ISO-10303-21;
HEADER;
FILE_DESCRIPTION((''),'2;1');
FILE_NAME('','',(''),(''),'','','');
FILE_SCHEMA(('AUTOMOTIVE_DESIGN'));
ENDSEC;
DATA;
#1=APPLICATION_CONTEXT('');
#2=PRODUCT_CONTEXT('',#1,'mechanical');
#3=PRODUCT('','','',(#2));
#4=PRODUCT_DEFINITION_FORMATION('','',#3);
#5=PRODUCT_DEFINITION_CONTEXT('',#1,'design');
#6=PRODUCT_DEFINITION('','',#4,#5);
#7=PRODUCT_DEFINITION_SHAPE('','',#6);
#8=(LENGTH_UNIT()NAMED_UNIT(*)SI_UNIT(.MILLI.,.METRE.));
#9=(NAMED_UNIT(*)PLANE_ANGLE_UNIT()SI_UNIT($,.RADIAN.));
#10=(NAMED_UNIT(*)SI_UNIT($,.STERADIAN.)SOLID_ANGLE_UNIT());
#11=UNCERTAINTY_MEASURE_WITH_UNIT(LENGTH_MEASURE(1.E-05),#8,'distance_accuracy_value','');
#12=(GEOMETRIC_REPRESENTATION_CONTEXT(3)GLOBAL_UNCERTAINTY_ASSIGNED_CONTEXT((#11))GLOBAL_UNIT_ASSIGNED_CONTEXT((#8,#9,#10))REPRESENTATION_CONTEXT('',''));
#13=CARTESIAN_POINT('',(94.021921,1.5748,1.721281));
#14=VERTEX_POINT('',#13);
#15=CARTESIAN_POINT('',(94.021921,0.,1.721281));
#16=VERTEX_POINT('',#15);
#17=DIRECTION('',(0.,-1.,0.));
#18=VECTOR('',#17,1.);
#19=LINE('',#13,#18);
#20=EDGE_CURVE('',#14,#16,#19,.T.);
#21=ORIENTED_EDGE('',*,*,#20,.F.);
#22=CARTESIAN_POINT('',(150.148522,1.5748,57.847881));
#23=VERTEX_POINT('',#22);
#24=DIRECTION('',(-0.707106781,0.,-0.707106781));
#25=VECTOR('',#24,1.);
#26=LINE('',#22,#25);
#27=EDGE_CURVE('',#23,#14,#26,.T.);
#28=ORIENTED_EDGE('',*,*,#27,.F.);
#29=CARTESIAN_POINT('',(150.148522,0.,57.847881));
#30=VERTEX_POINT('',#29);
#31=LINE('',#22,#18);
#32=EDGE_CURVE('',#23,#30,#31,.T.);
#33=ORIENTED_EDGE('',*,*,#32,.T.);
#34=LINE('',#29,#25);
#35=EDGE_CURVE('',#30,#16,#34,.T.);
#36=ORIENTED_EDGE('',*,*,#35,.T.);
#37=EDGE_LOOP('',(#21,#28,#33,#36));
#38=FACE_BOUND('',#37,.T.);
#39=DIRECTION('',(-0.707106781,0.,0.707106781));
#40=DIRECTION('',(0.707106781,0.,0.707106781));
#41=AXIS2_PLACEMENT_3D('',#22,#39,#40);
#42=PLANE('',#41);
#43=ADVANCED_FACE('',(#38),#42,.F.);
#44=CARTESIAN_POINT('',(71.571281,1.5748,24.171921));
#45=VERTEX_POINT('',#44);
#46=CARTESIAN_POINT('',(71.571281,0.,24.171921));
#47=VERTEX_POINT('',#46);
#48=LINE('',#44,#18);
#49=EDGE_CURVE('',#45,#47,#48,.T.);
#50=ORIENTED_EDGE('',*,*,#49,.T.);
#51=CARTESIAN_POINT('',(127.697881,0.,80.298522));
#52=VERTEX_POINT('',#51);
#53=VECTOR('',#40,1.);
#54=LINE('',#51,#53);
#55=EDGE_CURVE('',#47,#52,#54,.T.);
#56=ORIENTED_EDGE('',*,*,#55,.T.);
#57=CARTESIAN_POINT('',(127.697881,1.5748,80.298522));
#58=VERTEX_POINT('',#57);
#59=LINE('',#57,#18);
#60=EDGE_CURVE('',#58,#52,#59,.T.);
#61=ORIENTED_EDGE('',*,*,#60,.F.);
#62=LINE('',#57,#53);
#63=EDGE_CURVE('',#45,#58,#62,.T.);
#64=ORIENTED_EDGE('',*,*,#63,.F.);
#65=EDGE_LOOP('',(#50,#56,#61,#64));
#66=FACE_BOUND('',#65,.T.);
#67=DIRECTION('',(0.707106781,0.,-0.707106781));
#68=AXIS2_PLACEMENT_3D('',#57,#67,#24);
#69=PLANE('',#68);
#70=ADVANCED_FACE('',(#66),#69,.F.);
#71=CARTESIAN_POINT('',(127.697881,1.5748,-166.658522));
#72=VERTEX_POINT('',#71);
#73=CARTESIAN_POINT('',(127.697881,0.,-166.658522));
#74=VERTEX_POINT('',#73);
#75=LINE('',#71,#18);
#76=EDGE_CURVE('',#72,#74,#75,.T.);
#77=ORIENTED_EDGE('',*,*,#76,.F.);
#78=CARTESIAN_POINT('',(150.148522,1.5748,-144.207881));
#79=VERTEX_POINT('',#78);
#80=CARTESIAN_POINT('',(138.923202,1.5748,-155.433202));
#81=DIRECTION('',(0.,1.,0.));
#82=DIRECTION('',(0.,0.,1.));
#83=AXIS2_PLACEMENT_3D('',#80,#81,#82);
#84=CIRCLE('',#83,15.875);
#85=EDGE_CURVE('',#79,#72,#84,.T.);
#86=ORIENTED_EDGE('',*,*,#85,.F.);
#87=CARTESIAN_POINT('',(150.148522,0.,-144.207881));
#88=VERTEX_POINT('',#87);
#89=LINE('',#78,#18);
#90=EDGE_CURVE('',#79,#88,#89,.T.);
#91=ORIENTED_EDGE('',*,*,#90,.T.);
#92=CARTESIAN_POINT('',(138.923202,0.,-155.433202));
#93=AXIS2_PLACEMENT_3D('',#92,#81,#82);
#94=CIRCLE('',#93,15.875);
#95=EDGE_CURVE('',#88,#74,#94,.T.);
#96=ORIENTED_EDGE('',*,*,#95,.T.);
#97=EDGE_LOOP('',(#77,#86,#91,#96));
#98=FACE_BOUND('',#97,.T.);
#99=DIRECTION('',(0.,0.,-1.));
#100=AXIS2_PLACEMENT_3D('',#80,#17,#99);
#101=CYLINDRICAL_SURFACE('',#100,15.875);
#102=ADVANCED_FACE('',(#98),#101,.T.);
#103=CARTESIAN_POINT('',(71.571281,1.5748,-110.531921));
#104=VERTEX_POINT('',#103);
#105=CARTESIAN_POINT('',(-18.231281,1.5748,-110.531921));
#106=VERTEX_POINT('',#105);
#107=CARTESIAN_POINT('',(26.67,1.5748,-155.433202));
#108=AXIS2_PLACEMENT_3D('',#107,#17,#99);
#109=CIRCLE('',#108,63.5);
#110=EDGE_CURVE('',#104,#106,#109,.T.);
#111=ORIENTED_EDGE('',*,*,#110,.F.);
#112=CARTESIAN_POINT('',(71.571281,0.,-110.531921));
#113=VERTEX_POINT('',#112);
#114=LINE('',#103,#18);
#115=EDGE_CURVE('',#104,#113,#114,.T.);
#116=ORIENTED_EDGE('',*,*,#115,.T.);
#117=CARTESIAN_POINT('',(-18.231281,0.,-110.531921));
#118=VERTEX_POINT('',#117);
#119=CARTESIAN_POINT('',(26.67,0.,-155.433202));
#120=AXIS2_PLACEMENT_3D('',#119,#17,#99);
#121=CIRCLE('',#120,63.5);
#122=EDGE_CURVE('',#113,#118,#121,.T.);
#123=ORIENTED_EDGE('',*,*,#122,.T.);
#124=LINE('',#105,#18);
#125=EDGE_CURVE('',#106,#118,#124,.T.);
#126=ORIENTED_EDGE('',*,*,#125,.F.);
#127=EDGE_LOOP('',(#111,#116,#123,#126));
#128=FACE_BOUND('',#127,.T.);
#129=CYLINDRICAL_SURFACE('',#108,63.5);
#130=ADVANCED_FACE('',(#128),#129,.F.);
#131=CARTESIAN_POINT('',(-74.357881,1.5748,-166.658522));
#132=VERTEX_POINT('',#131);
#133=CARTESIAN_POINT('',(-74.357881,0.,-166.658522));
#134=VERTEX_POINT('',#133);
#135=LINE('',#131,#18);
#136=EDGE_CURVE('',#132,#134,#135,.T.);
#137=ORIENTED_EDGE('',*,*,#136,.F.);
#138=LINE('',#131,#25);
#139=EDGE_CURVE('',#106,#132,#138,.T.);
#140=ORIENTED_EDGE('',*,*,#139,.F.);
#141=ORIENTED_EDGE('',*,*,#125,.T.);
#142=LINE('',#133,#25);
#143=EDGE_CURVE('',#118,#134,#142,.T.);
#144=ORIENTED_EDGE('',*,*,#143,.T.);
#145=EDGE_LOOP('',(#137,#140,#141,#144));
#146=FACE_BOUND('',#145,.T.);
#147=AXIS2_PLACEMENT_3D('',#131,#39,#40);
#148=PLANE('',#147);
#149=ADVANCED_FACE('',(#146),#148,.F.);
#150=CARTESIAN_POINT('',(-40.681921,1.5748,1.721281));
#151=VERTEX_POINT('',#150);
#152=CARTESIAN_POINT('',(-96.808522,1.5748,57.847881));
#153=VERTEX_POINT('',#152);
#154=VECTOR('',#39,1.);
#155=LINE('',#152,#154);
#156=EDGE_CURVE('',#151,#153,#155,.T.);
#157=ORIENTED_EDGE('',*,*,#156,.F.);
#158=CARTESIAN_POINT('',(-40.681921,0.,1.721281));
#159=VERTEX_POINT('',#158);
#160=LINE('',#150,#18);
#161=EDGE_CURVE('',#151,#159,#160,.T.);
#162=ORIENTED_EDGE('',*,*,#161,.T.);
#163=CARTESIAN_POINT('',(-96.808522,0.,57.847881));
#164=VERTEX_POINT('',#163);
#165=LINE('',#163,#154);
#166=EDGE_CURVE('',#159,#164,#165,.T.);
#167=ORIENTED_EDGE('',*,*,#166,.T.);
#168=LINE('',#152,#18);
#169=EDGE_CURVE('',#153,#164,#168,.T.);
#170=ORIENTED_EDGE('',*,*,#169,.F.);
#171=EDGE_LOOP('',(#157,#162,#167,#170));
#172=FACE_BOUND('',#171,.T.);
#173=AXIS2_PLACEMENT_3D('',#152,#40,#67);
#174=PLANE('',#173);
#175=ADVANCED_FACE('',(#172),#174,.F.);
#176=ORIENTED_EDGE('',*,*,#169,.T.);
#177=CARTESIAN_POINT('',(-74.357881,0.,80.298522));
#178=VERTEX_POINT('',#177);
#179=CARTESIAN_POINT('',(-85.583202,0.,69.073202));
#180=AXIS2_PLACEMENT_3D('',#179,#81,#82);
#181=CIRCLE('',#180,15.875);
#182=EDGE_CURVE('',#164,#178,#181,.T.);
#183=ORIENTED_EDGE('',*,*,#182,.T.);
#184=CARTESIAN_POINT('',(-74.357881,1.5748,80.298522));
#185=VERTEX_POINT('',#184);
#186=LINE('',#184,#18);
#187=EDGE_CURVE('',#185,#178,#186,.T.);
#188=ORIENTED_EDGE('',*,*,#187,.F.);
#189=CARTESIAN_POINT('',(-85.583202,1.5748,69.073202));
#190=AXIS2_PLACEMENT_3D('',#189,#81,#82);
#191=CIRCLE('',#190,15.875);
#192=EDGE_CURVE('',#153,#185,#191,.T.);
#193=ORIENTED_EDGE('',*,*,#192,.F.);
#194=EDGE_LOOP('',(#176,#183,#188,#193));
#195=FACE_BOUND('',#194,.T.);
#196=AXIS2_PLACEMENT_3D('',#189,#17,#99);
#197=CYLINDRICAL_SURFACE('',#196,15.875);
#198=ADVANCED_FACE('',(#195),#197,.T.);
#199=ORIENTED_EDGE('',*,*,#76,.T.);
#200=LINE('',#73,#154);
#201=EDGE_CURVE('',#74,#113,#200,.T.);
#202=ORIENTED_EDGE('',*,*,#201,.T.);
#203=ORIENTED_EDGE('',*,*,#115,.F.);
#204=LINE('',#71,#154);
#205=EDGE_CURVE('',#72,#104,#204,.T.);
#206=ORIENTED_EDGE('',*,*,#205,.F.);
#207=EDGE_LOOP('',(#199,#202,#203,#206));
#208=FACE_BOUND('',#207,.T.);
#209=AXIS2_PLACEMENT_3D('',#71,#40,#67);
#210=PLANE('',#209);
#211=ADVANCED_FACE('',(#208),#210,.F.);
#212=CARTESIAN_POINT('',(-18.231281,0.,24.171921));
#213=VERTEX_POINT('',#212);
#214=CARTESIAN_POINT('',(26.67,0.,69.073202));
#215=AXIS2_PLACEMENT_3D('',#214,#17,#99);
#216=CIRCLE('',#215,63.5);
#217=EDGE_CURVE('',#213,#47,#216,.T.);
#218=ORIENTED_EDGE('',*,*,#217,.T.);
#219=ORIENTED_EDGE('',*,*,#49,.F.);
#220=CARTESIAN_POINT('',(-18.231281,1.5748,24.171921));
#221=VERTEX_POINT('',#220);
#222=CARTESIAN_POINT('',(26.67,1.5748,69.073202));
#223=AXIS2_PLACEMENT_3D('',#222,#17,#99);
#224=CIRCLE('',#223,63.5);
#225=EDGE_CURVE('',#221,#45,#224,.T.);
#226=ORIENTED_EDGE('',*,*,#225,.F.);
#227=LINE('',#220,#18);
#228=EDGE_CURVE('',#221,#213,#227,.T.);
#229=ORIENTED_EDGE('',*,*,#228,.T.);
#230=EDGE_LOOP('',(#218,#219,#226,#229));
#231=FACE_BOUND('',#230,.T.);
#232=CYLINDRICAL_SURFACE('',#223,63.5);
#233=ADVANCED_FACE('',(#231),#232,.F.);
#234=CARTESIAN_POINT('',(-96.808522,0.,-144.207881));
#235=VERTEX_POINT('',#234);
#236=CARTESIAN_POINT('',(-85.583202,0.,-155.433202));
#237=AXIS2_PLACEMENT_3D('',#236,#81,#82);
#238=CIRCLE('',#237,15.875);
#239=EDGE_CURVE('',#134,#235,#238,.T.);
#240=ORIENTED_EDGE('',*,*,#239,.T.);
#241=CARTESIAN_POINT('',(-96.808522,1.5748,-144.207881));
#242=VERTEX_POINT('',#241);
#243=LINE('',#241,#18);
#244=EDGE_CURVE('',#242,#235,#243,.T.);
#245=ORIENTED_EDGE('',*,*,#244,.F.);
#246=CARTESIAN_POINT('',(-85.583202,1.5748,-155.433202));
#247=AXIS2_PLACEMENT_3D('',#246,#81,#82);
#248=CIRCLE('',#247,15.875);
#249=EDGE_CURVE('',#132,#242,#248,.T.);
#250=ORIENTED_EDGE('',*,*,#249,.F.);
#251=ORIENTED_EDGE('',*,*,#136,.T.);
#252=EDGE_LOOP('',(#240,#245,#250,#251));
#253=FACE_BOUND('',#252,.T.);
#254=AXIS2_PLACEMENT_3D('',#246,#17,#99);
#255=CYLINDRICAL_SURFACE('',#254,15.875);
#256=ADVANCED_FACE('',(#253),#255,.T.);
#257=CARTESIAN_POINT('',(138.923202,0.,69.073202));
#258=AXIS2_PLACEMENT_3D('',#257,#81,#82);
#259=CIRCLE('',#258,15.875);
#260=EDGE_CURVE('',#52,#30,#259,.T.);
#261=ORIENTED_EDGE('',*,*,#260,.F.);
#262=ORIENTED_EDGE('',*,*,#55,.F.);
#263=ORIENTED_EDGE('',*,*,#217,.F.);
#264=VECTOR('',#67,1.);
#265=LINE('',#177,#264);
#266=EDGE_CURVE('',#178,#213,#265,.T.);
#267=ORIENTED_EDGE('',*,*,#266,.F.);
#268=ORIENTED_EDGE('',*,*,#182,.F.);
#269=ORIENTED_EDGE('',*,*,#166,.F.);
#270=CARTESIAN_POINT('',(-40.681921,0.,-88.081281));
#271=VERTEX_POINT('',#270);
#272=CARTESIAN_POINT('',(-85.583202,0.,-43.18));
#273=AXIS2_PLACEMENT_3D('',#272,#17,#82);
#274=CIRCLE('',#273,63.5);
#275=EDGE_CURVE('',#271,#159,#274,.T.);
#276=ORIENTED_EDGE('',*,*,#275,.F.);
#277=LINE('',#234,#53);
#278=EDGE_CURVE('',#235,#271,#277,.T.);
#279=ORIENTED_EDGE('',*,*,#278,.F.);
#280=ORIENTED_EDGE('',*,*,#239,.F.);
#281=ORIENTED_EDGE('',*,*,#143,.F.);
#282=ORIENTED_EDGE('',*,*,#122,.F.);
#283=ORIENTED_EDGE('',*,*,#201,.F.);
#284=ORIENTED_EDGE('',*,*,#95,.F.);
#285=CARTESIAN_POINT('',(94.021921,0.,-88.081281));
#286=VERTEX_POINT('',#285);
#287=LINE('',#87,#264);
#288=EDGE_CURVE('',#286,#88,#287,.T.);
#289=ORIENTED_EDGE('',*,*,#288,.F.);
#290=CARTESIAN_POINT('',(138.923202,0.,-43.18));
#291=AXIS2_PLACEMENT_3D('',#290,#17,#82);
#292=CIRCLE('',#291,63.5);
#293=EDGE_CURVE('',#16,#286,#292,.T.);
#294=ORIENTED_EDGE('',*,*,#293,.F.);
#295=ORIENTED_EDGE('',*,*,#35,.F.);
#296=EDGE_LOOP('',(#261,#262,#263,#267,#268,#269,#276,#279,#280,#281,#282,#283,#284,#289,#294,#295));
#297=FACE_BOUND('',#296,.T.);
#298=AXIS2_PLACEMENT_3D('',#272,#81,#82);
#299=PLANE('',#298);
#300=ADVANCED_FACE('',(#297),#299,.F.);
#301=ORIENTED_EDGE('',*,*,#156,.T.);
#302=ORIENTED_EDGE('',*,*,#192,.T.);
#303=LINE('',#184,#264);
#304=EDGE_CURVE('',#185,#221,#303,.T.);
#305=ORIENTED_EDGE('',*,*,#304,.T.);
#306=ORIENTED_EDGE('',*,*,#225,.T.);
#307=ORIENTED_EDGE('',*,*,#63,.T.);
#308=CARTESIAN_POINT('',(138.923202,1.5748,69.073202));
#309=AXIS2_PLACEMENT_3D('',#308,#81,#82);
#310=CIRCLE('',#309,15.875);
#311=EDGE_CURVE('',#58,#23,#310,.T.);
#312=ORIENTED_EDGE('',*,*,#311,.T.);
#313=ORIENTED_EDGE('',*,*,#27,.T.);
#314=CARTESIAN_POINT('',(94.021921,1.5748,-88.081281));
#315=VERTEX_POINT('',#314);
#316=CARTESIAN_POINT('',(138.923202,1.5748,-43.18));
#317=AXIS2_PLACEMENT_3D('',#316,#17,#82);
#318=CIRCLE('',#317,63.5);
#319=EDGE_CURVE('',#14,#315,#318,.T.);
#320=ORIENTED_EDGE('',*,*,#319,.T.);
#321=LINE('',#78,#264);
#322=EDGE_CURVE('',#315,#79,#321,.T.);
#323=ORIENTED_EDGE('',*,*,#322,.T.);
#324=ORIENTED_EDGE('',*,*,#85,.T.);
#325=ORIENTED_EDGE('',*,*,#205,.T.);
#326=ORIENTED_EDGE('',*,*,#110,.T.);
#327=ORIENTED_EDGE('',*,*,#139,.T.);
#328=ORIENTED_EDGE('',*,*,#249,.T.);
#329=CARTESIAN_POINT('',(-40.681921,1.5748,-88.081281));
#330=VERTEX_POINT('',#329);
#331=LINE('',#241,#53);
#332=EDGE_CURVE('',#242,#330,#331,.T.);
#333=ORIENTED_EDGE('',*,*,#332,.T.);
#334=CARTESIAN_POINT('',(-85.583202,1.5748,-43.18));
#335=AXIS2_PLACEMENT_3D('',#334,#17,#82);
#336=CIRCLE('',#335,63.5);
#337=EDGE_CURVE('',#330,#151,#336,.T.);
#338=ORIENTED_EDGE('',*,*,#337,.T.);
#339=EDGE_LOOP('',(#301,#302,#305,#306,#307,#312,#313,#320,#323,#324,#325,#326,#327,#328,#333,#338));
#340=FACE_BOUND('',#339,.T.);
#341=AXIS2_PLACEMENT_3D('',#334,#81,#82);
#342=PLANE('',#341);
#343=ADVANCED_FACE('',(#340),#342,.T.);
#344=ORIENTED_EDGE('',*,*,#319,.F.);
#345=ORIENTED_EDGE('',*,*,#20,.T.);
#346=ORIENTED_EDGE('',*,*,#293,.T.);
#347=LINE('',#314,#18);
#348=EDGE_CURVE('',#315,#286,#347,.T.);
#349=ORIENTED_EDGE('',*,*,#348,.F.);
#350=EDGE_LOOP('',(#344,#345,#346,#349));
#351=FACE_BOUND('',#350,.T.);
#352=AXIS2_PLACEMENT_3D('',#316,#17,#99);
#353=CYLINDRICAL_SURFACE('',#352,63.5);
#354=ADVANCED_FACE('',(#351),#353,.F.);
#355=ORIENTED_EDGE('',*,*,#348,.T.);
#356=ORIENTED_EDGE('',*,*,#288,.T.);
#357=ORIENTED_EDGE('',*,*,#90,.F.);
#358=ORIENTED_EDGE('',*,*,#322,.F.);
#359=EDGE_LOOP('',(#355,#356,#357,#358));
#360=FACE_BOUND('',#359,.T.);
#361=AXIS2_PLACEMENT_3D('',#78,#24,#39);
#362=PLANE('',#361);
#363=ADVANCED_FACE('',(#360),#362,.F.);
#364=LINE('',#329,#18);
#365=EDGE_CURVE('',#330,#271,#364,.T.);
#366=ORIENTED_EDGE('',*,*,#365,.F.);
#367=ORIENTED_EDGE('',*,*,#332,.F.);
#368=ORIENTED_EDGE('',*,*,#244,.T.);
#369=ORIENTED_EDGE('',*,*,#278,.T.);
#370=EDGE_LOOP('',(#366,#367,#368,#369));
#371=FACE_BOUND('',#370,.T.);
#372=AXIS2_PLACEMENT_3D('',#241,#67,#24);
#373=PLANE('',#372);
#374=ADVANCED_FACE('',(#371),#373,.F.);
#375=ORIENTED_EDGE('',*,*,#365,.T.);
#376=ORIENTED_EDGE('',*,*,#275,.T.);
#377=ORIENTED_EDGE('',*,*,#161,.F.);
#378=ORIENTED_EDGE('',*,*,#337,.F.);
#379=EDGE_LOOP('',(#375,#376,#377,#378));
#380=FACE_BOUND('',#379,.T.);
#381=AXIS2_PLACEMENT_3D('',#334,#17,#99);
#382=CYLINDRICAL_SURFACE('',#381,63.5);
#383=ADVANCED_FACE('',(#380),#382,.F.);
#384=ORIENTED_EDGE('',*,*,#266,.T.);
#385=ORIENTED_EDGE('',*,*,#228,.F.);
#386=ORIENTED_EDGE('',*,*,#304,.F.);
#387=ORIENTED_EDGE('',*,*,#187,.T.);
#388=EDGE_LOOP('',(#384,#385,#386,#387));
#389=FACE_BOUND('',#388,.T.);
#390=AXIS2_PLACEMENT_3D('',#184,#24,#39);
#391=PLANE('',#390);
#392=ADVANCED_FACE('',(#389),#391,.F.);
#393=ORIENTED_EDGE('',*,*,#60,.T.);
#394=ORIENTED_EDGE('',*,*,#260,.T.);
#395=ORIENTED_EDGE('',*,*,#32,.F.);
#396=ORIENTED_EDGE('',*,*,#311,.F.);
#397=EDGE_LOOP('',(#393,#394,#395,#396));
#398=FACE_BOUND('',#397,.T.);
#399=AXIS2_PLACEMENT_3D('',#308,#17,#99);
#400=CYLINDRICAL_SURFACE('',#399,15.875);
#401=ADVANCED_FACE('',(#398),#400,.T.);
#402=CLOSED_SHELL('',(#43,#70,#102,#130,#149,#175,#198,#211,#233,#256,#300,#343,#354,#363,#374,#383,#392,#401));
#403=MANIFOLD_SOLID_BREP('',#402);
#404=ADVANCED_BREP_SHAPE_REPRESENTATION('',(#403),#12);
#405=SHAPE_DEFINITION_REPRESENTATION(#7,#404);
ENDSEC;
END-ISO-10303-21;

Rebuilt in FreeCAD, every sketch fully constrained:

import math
import FreeCAD as App
import Part
import Sketcher
Q = App.Units.Quantity

doc = App.newDocument("Part")
params = doc.addObject("Spreadsheet::Sheet", "Params")
for row, (alias, value) in enumerate([
    ("sketch1_radius", "2.5 in"),
    ("sketch1_radius2", "0.625 in"),
    ("pad1_length", "0.062 in"),
], start=1):
    params.set(f"A{row}", alias)
    params.set(f"B{row}", "=" + value)
    params.setAlias(f"B{row}", alias)

body = doc.addObject("PartDesign::Body", "Body")

# Sketch on XZ plane
sketch1 = doc.addObject("Sketcher::SketchObject", "Sketch")
body.addObject(sketch1)
sketch1.AttachmentSupport = (doc.XZ_Plane, [""])
sketch1.MapMode = "FlatFace"
sketch1.addGeometry([
    Part.LineSegment(App.Vector(-97, -144, 0), App.Vector(-41, -88, 0)),  # 0
    Part.ArcOfCircle(Part.Circle(App.Vector(-86, -43, 0), App.Vector(0, 0, 1), 63), math.radians(-45), math.radians(45)),  # 1
    Part.LineSegment(App.Vector(-41, 2, 0), App.Vector(-97, 58, 0)),  # 2
    Part.ArcOfCircle(Part.Circle(App.Vector(-86, 69, 0), App.Vector(0, 0, 1), 16), math.radians(45), math.radians(225)),  # 3
    Part.LineSegment(App.Vector(-74, 80, 0), App.Vector(-18, 24, 0)),  # 4
    Part.ArcOfCircle(Part.Circle(App.Vector(27, 69, 0), App.Vector(0, 0, 1), 63), math.radians(-135), math.radians(-45)),  # 5
    Part.LineSegment(App.Vector(72, 24, 0), App.Vector(128, 80, 0)),  # 6
    Part.ArcOfCircle(Part.Circle(App.Vector(139, 69, 0), App.Vector(0, 0, 1), 16), math.radians(-45), math.radians(135)),  # 7
    Part.LineSegment(App.Vector(150, 58, 0), App.Vector(94, 2, 0)),  # 8
    Part.ArcOfCircle(Part.Circle(App.Vector(139, -43, 0), App.Vector(0, 0, 1), 63), math.radians(135), math.radians(225)),  # 9
    Part.LineSegment(App.Vector(94, -88, 0), App.Vector(150, -144, 0)),  # 10
    Part.ArcOfCircle(Part.Circle(App.Vector(139, -155, 0), App.Vector(0, 0, 1), 16), math.radians(-135), math.radians(45)),  # 11
    Part.LineSegment(App.Vector(128, -167, 0), App.Vector(72, -111, 0)),  # 12
    Part.ArcOfCircle(Part.Circle(App.Vector(27, -155, 0), App.Vector(0, 0, 1), 63), math.radians(45), math.radians(135)),  # 13
    Part.LineSegment(App.Vector(-18, -111, 0), App.Vector(-74, -167, 0)),  # 14
    Part.ArcOfCircle(Part.Circle(App.Vector(-86, -155, 0), App.Vector(0, 0, 1), 16), math.radians(135), math.radians(315)),  # 15
], False)
sketch1.addConstraint([
    Sketcher.Constraint("Tangent", 0, 2, 1, 1),
    Sketcher.Constraint("Tangent", 1, 2, 2, 1),
    Sketcher.Constraint("Tangent", 2, 2, 3, 2),
    Sketcher.Constraint("Tangent", 3, 1, 4, 1),
    Sketcher.Constraint("Tangent", 4, 2, 5, 1),
    Sketcher.Constraint("Tangent", 5, 2, 6, 1),
    Sketcher.Constraint("Tangent", 6, 2, 7, 2),
    Sketcher.Constraint("Tangent", 7, 1, 8, 1),
    Sketcher.Constraint("Tangent", 8, 2, 9, 1),
    Sketcher.Constraint("Tangent", 9, 2, 10, 1),
    Sketcher.Constraint("Tangent", 10, 2, 11, 2),
    Sketcher.Constraint("Tangent", 11, 1, 12, 1),
    Sketcher.Constraint("Tangent", 12, 2, 13, 1),
    Sketcher.Constraint("Tangent", 13, 2, 14, 1),
    Sketcher.Constraint("Tangent", 14, 2, 15, 2),
    Sketcher.Constraint("Tangent", 15, 1, 0, 1),
    Sketcher.Constraint("Equal", 1, 5),
    Sketcher.Constraint("Equal", 3, 7),
    Sketcher.Constraint("Equal", 5, 9),
    Sketcher.Constraint("Equal", 7, 11),
    Sketcher.Constraint("Equal", 9, 13),
    Sketcher.Constraint("Equal", 11, 15),
    Sketcher.Constraint("Perpendicular", 0, 2),
    Sketcher.Constraint("Parallel", 2, 4),
    Sketcher.Constraint("Perpendicular", 4, 6),
    Sketcher.Constraint("Parallel", 6, 8),
    Sketcher.Constraint("Perpendicular", 8, 10),
    Sketcher.Constraint("Parallel", 10, 12),
    Sketcher.Constraint("Perpendicular", 12, 14),
    Sketcher.Constraint("Horizontal", 3, 3, 5, 3),
    Sketcher.Constraint("Horizontal", 5, 3, 7, 3),
    Sketcher.Constraint("Horizontal", 1, 3, 9, 3),
    Sketcher.Constraint("Horizontal", 11, 3, 13, 3),
    Sketcher.Constraint("Horizontal", 13, 3, 15, 3),
    Sketcher.Constraint("Horizontal", 4, 2, 5, 2),
    Sketcher.Constraint("Vertical", 1, 3, 3, 3),
    Sketcher.Constraint("Radius", 1, Q("2.5 in")),
    Sketcher.Constraint("Radius", 3, Q("0.625 in")),
    Sketcher.Constraint("DistanceY", 1, 3, -1, 1, Q("1.7 in")),
    Sketcher.Constraint("DistanceX", -1, 1, 5, 3, Q("1.05 in")),
])
sketch1.setExpression("Constraints[36]", "Params.sketch1_radius")
sketch1.setExpression("Constraints[37]", "Params.sketch1_radius2")
pad1 = doc.addObject("PartDesign::Pad", "Pad")
body.addObject(pad1)
pad1.Profile = sketch1
pad1.setExpression("Length", "Params.pad1_length")
pad1.Reversed = True

doc.recompute()
